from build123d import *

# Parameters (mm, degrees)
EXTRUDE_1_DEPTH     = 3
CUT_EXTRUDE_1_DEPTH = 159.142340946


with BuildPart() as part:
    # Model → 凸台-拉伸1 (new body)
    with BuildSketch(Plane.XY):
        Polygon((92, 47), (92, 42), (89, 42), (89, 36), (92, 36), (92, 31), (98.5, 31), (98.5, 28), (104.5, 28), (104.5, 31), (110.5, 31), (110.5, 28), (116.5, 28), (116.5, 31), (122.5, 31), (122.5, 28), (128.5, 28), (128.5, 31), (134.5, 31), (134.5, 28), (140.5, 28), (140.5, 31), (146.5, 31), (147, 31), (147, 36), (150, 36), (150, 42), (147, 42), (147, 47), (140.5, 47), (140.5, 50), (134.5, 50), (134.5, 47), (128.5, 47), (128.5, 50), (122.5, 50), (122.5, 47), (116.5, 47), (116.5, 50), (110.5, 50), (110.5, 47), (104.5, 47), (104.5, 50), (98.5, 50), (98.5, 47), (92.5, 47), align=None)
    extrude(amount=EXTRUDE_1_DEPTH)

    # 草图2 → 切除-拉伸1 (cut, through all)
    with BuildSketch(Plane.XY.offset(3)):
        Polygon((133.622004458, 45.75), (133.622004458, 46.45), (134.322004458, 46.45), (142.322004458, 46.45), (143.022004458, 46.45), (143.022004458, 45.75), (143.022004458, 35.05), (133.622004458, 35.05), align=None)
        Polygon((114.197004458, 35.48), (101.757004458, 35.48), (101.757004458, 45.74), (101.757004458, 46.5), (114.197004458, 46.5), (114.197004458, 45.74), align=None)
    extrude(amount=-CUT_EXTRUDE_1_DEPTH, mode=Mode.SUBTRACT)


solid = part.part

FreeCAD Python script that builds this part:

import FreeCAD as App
import Part
import Sketcher
from FreeCAD import Vector
Q = App.Units.Quantity


def add_polygon(sketch, points):
    """Adds a closed chain of lines whose ends are joined by coincident constraints."""
    first, n = sketch.GeometryCount, len(points)
    for a, b in zip(points, points[1:] + points[:1]):
        sketch.addGeometry(Part.LineSegment(App.Vector(*a, 0), App.Vector(*b, 0)), False)
    for i in range(n):
        sketch.addConstraint(Sketcher.Constraint("Coincident", first + i, 2, first + (i + 1) % n, 1))

doc = App.newDocument("Part")
body = doc.addObject("PartDesign::Body", "Body")

# Sketch on XY plane
sketch1 = body.newObject("Sketcher::SketchObject", "Sketch")
sketch1.AttachmentSupport = (doc.getObject("XY_Plane"), [""])
sketch1.MapMode = "FlatFace"
add_polygon(sketch1, [(92, 47), (92, 42), (89, 42), (89, 36), (92, 36), (92, 31), (98.5, 31), (98.5, 28), (104.5, 28), (104.5, 31), (110.5, 31), (110.5, 28), (116.5, 28), (116.5, 31), (122.5, 31), (122.5, 28), (128.5, 28), (128.5, 31), (134.5, 31), (134.5, 28), (140.5, 28), (140.5, 31), (147, 31), (147, 36), (150, 36), (150, 42), (147, 42), (147, 47), (140.5, 47), (140.5, 50), (134.5, 50), (134.5, 47), (128.5, 47), (128.5, 50), (122.5, 50), (122.5, 47), (116.5, 47), (116.5, 50), (110.5, 50), (110.5, 47), (104.5, 47), (104.5, 50), (98.5, 50), (98.5, 47)])  # lines 0-43
sketch1.addConstraint([
    Sketcher.Constraint("Vertical", 0),
    Sketcher.Constraint("Horizontal", 1),
    Sketcher.Constraint("Vertical", 2),
    Sketcher.Constraint("Horizontal", 3),
    Sketcher.Constraint("Vertical", 4),
    Sketcher.Constraint("Horizontal", 5),
    Sketcher.Constraint("Vertical", 6),
    Sketcher.Constraint("Horizontal", 7),
    Sketcher.Constraint("Vertical", 8),
    Sketcher.Constraint("Horizontal", 9),
    Sketcher.Constraint("Vertical", 10),
    Sketcher.Constraint("Horizontal", 11),
    Sketcher.Constraint("Vertical", 12),
    Sketcher.Constraint("Horizontal", 13),
    Sketcher.Constraint("Vertical", 14),
    Sketcher.Constraint("Horizontal", 15),
    Sketcher.Constraint("Vertical", 16),
    Sketcher.Constraint("Horizontal", 17),
    Sketcher.Constraint("Vertical", 18),
    Sketcher.Constraint("Horizontal", 19),
    Sketcher.Constraint("Vertical", 20),
    Sketcher.Constraint("Horizontal", 21),
    Sketcher.Constraint("Vertical", 22),
    Sketcher.Constraint("Horizontal", 23),
    Sketcher.Constraint("Vertical", 24),
    Sketcher.Constraint("Horizontal", 25),
    Sketcher.Constraint("Vertical", 26),
    Sketcher.Constraint("Horizontal", 27),
    Sketcher.Constraint("Vertical", 28),
    Sketcher.Constraint("Horizontal", 29),
    Sketcher.Constraint("Vertical", 30),
    Sketcher.Constraint("Horizontal", 31),
    Sketcher.Constraint("Vertical", 32),
    Sketcher.Constraint("Horizontal", 33),
    Sketcher.Constraint("Vertical", 34),
    Sketcher.Constraint("Horizontal", 35),
    Sketcher.Constraint("Vertical", 36),
    Sketcher.Constraint("Horizontal", 37),
    Sketcher.Constraint("Vertical", 38),
    Sketcher.Constraint("Horizontal", 39),
    Sketcher.Constraint("Vertical", 40),
    Sketcher.Constraint("Horizontal", 41),
    Sketcher.Constraint("Vertical", 42),
    Sketcher.Constraint("Horizontal", 43),
    Sketcher.Constraint("Horizontal", 5, 2, 8, 2),
    Sketcher.Constraint("Horizontal", 7, 2, 10, 2),
    Sketcher.Constraint("Horizontal", 9, 2, 12, 2),
    Sketcher.Constraint("Horizontal", 11, 2, 14, 2),
    Sketcher.Constraint("Horizontal", 13, 2, 16, 2),
    Sketcher.Constraint("Horizontal", 15, 2, 18, 2),
    Sketcher.Constraint("Horizontal", 17, 2, 20, 2),
    Sketcher.Constraint("Horizontal", 3, 2, 22, 2),
    Sketcher.Constraint("Horizontal", 1, 2, 24, 2),
    Sketcher.Constraint("Horizontal", 27, 2, 30, 2),
    Sketcher.Constraint("Horizontal", 29, 2, 32, 2),
    Sketcher.Constraint("Horizontal", 31, 2, 34, 2),
    Sketcher.Constraint("Horizontal", 33, 2, 36, 2),
    Sketcher.Constraint("Horizontal", 35, 2, 38, 2),
    Sketcher.Constraint("Horizontal", 37, 2, 40, 2),
    Sketcher.Constraint("Horizontal", 39, 2, 42, 2),
    Sketcher.Constraint("Vertical", 0, 2, 3, 2),
    Sketcher.Constraint("Vertical", 22, 2, 25, 2),
    Sketcher.Constraint("Vertical", 20, 2, 27, 2),
    Sketcher.Constraint("Vertical", 18, 2, 29, 2),
    Sketcher.Constraint("Vertical", 16, 2, 31, 2),
    Sketcher.Constraint("Vertical", 14, 2, 33, 2),
    Sketcher.Constraint("Vertical", 12, 2, 35, 2),
    Sketcher.Constraint("Vertical", 10, 2, 37, 2),
    Sketcher.Constraint("Vertical", 8, 2, 39, 2),
    Sketcher.Constraint("Vertical", 6, 2, 41, 2),
    Sketcher.Constraint("Equal", 7, 9),
    Sketcher.Constraint("Equal", 9, 11),
    Sketcher.Constraint("Equal", 11, 13),
    Sketcher.Constraint("Equal", 13, 15),
    Sketcher.Constraint("Equal", 15, 17),
    Sketcher.Constraint("Equal", 17, 19),
    Sketcher.Constraint("Equal", 5, 21),
    Sketcher.Constraint("Equal", 3, 23),
    Sketcher.Constraint("Equal", 41, 2),
    Sketcher.Constraint("Equal", 0, 4),
    Sketcher.Constraint("Equal", 25, 6),
    Sketcher.Constraint("Equal", 20, 28),
    Sketcher.Constraint("DistanceX", 1, 2, 1, 1, Q("3 mm")),
    Sketcher.Constraint("DistanceX", 7, 1, 7, 2, Q("6 mm")),
    Sketcher.Constraint("DistanceY", 0, 2, 0, 1, Q("5 mm")),
    Sketcher.Constraint("DistanceX", 5, 1, 5, 2, Q("6.5 mm")),
    Sketcher.Constraint("DistanceX", -1, 1, 0, 2, Q("92 mm")),
    Sketcher.Constraint("DistanceY", -1, 1, 0, 2, Q("42 mm")),
])
pad1 = body.newObject("PartDesign::Pad", "Pad")
pad1.Profile = sketch1
pad1.Length = 3

# Sketch on XY plane
sketch2 = body.newObject("Sketcher::SketchObject", "Sketch001")
sketch2.AttachmentSupport = (doc.getObject("XY_Plane"), [""])
sketch2.MapMode = "FlatFace"
sketch2.AttachmentOffset = App.Placement(Vector(0, 0, 3), App.Rotation())
add_polygon(sketch2, [(134, 46), (134, 35), (143, 35), (143, 46)])  # lines 0-3
add_polygon(sketch2, [(102, 35), (114, 35), (114, 46), (102, 46)])  # lines 4-7
sketch2.addConstraint([
    Sketcher.Constraint("Vertical", 0),
    Sketcher.Constraint("Horizontal", 1),
    Sketcher.Constraint("Vertical", 2),
    Sketcher.Constraint("Horizontal", 3),
    Sketcher.Constraint("Horizontal", 4),
    Sketcher.Constraint("Vertical", 5),
    Sketcher.Constraint("Horizontal", 6),
    Sketcher.Constraint("Vertical", 7),
    Sketcher.Constraint("DistanceX", 1, 1, 1, 2, Q("9.4 mm")),
    Sketcher.Constraint("DistanceY", 0, 2, 0, 1, Q("11.4 mm")),
    Sketcher.Constraint("DistanceX", 4, 1, 4, 2, Q("12.44 mm")),
    Sketcher.Constraint("DistanceY", 5, 1, 5, 2, Q("11.02 mm")),
    Sketcher.Constraint("DistanceY", -1, 1, 5, 2, Q("46.5 mm")),
    Sketcher.Constraint("DistanceY", -1, 1, 0, 2, Q("35.05 mm")),
    Sketcher.Constraint("DistanceX", 4, 2, 0, 2, Q("19.425 mm")),
    Sketcher.Constraint("DistanceX", -1, 1, 0, 2, Q("133.622004 mm")),
])
pocket1 = body.newObject("PartDesign::Pocket", "Pocket")
pocket1.Profile = sketch2
pocket1.Type = "ThroughAll"

doc.recompute()
